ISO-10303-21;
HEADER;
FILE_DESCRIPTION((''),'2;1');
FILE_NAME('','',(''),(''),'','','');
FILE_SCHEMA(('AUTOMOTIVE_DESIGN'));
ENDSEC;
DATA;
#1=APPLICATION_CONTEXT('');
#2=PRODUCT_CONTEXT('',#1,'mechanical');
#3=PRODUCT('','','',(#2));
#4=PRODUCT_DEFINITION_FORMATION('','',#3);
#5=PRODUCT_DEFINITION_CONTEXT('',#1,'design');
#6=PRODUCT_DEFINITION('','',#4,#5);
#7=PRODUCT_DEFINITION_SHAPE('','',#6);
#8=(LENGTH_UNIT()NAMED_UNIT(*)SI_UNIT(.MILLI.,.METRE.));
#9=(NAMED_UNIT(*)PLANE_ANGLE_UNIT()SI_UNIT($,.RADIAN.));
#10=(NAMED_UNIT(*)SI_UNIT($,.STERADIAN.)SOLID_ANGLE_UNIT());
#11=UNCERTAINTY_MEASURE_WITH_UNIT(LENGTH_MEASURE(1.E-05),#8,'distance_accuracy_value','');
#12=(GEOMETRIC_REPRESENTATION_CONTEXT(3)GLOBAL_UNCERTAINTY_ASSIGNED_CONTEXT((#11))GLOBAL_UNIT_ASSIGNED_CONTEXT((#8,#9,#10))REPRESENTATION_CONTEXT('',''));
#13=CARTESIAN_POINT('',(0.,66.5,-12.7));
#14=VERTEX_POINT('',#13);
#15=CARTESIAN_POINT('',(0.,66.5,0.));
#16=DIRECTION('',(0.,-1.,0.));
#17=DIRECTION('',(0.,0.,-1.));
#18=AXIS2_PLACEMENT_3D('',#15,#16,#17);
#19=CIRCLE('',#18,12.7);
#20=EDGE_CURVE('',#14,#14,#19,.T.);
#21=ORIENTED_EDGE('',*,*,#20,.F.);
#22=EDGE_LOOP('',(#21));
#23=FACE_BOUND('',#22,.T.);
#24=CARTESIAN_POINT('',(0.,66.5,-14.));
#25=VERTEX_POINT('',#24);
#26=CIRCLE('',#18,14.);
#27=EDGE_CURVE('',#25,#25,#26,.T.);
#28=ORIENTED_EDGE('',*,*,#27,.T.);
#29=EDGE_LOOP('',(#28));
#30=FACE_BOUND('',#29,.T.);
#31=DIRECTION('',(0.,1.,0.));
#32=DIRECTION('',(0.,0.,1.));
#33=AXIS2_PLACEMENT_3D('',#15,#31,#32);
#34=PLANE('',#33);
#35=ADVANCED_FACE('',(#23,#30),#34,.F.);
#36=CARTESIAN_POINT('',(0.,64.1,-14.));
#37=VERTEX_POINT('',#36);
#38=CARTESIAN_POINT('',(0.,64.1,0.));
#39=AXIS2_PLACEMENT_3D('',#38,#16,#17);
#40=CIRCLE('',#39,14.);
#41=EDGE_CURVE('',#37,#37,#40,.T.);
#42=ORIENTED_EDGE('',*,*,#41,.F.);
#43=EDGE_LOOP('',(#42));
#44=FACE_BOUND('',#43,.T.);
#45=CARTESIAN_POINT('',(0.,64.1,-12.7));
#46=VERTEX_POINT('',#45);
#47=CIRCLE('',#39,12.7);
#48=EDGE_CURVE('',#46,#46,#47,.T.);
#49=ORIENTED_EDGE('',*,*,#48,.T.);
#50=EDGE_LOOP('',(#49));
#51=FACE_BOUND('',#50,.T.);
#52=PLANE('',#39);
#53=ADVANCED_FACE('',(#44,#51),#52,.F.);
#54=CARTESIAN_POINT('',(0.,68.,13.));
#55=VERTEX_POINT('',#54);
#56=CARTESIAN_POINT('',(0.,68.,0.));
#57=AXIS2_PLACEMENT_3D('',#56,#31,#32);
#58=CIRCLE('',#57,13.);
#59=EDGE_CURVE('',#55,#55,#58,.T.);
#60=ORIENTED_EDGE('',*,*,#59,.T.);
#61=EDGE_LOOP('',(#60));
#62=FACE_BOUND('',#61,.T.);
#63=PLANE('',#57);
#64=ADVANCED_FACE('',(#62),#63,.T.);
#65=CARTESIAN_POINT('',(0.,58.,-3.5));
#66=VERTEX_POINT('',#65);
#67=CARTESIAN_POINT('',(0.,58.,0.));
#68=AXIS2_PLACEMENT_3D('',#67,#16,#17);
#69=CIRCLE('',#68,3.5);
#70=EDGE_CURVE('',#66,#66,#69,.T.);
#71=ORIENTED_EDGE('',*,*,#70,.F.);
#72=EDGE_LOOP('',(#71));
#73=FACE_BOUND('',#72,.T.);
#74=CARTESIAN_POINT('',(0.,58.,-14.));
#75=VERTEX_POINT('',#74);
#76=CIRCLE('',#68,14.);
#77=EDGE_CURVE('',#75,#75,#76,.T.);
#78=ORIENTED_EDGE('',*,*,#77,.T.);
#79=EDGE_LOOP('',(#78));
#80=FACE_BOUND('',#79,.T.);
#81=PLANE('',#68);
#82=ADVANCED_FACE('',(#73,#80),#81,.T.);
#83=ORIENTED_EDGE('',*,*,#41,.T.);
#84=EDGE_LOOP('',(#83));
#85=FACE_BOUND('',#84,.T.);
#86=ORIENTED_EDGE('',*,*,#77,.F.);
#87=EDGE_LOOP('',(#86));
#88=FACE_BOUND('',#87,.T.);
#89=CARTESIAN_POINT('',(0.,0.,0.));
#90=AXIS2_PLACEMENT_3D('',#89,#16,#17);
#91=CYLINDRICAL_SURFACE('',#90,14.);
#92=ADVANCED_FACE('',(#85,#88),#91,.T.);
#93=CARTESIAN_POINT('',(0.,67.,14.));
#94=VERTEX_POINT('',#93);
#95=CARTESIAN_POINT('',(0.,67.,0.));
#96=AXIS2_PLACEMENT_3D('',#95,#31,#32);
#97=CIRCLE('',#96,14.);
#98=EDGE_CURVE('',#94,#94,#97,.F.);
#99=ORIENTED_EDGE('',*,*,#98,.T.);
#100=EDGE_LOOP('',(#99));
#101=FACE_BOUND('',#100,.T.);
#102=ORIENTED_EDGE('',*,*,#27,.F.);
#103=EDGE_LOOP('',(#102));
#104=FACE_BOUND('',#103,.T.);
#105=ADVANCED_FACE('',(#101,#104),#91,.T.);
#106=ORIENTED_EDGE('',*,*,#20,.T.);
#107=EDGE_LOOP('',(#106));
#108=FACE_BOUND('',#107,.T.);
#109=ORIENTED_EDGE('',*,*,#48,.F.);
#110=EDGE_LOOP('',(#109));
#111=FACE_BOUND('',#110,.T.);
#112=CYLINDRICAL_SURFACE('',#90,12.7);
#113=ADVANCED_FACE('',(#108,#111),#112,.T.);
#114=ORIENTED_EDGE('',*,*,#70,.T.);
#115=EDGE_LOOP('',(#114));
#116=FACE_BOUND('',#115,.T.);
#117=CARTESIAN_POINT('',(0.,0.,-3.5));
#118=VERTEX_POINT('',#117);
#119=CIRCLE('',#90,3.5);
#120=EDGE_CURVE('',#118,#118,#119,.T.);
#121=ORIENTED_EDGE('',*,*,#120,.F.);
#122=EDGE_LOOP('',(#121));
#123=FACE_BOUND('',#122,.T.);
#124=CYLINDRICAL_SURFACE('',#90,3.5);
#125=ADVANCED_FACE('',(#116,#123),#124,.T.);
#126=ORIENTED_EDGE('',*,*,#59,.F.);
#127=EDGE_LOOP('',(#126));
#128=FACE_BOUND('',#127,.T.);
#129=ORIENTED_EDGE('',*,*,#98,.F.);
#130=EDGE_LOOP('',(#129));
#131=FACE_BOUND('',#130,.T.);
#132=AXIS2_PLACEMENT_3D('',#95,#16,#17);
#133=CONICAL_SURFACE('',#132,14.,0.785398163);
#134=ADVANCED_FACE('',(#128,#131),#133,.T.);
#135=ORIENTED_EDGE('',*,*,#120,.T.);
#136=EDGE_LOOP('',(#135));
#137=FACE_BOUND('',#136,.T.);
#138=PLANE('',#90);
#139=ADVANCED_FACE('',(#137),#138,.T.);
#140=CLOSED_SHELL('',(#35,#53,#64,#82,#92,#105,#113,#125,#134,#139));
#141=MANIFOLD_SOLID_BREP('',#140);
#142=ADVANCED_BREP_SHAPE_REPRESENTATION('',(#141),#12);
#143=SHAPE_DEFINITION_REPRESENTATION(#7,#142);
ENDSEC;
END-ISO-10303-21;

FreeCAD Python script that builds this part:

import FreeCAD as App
import Part
import Sketcher
from FreeCAD import Vector


def edges_at(feature, points):
    """Names of the edges that pass closest to the given points."""
    edges = feature.Shape.Edges
    near = lambda p: min(range(len(edges)), key=lambda i: edges[i].distToShape(Part.Vertex(*p))[0])
    return sorted({f"Edge{near(p) + 1}" for p in points})

doc = App.newDocument("Part")
params = doc.addObject("Spreadsheet::Sheet", "Params")
for row, (alias, value) in enumerate([
    ("sketch1_width", "14 mm"),
    ("sketch1_height", "68 mm"),
    ("sketch1_height2", "58 mm"),
    ("sketch1_width2", "3.5 mm"),
    ("sketch1_width3", "1.3 mm"),
    ("revolution_angle", "360 deg"),
    ("chamfer_size", "1 mm"),
], start=1):
    params.set(f"A{row}", alias)
    params.set(f"B{row}", "=" + value)
    params.setAlias(f"B{row}", alias)

body = doc.addObject("PartDesign::Body", "Body")

# Sketch on XY plane
sketch1 = body.newObject("Sketcher::SketchObject", "Sketch")
sketch1.AttachmentSupport = (doc.getObject("XY_Plane"), [""])
sketch1.MapMode = "FlatFace"
sketch1.addGeometry([
    Part.LineSegment(Vector(-3.5, 0, 0), Vector(0, 0, 0)),  # 0
    Part.LineSegment(Vector(0, 0, 0), Vector(0, 68, 0)),  # 1
    Part.LineSegment(Vector(0, 68, 0), Vector(-14, 68, 0)),  # 2
    Part.LineSegment(Vector(-14, 68, 0), Vector(-14, 66.5, 0)),  # 3
    Part.LineSegment(Vector(-14, 66.5, 0), Vector(-12.7, 66.5, 0)),  # 4
    Part.LineSegment(Vector(-12.7, 66.5, 0), Vector(-12.7, 64.1, 0)),  # 5
    Part.LineSegment(Vector(-12.7, 64.1, 0), Vector(-14, 64.1, 0)),  # 6
    Part.LineSegment(Vector(-14, 64.1, 0), Vector(-14, 58, 0)),  # 7
    Part.LineSegment(Vector(-14, 58, 0), Vector(-3.5, 58, 0)),  # 8
    Part.LineSegment(Vector(-3.5, 58, 0), Vector(-3.5, 0, 0)),  # 9
], False)
sketch1.addConstraint([
    Sketcher.Constraint("Coincident", 0, 2, 1, 1),
    Sketcher.Constraint("Coincident", 1, 2, 2, 1),
    Sketcher.Constraint("Coincident", 2, 2, 3, 1),
    Sketcher.Constraint("Coincident", 3, 2, 4, 1),
    Sketcher.Constraint("Coincident", 4, 2, 5, 1),
    Sketcher.Constraint("Coincident", 5, 2, 6, 1),
    Sketcher.Constraint("Coincident", 6, 2, 7, 1),
    Sketcher.Constraint("Coincident", 7, 2, 8, 1),
    Sketcher.Constraint("Coincident", 8, 2, 9, 1),
    Sketcher.Constraint("Coincident", 9, 2, 0, 1),
    Sketcher.Constraint("Horizontal", 0),
    Sketcher.Constraint("Vertical", 1),
    Sketcher.Constraint("Horizontal", 2),
    Sketcher.Constraint("Vertical", 3),
    Sketcher.Constraint("Horizontal", 4),
    Sketcher.Constraint("Vertical", 5),
    Sketcher.Constraint("Horizontal", 6),
    Sketcher.Constraint("Vertical", 7),
    Sketcher.Constraint("Horizontal", 8),
    Sketcher.Constraint("Vertical", 9),
    Sketcher.Constraint("Coincident", 0, 2, -1, 1),
    Sketcher.Constraint("Vertical", 3, 2, 6, 2),
    Sketcher.Constraint("DistanceX", 2, 2, 2, 1, 14.0),
    Sketcher.Constraint("DistanceY", 1, 1, 1, 2, 68.0),
    Sketcher.Constraint("DistanceY", 9, 2, 9, 1, 58.0),
    Sketcher.Constraint("DistanceX", 0, 1, 0, 2, 3.5),
    Sketcher.Constraint("DistanceX", 4, 1, 4, 2, 1.3),
    Sketcher.Constraint("DistanceY", 3, 2, 3, 1, 1.5),
    Sketcher.Constraint("DistanceY", 5, 2, 5, 1, 2.4),
])
sketch1.setExpression("Constraints[22]", "Params.sketch1_width")
sketch1.setExpression("Constraints[23]", "Params.sketch1_height")
sketch1.setExpression("Constraints[24]", "Params.sketch1_height2")
sketch1.setExpression("Constraints[25]", "Params.sketch1_width2")
sketch1.setExpression("Constraints[26]", "Params.sketch1_width3")
revolution = body.newObject("PartDesign::Revolution", "Revolution")
revolution.Profile = sketch1
revolution.ReferenceAxis = (sketch1, ["V_Axis"])
revolution.setExpression("Angle", "Params.revolution_angle")
doc.recompute()

chamfer = body.newObject("PartDesign::Chamfer", "Chamfer")
chamfer.Base = (revolution, edges_at(revolution, [(0, 68, 14)]))
chamfer.setExpression("Size", "Params.chamfer_size")

doc.recompute()
